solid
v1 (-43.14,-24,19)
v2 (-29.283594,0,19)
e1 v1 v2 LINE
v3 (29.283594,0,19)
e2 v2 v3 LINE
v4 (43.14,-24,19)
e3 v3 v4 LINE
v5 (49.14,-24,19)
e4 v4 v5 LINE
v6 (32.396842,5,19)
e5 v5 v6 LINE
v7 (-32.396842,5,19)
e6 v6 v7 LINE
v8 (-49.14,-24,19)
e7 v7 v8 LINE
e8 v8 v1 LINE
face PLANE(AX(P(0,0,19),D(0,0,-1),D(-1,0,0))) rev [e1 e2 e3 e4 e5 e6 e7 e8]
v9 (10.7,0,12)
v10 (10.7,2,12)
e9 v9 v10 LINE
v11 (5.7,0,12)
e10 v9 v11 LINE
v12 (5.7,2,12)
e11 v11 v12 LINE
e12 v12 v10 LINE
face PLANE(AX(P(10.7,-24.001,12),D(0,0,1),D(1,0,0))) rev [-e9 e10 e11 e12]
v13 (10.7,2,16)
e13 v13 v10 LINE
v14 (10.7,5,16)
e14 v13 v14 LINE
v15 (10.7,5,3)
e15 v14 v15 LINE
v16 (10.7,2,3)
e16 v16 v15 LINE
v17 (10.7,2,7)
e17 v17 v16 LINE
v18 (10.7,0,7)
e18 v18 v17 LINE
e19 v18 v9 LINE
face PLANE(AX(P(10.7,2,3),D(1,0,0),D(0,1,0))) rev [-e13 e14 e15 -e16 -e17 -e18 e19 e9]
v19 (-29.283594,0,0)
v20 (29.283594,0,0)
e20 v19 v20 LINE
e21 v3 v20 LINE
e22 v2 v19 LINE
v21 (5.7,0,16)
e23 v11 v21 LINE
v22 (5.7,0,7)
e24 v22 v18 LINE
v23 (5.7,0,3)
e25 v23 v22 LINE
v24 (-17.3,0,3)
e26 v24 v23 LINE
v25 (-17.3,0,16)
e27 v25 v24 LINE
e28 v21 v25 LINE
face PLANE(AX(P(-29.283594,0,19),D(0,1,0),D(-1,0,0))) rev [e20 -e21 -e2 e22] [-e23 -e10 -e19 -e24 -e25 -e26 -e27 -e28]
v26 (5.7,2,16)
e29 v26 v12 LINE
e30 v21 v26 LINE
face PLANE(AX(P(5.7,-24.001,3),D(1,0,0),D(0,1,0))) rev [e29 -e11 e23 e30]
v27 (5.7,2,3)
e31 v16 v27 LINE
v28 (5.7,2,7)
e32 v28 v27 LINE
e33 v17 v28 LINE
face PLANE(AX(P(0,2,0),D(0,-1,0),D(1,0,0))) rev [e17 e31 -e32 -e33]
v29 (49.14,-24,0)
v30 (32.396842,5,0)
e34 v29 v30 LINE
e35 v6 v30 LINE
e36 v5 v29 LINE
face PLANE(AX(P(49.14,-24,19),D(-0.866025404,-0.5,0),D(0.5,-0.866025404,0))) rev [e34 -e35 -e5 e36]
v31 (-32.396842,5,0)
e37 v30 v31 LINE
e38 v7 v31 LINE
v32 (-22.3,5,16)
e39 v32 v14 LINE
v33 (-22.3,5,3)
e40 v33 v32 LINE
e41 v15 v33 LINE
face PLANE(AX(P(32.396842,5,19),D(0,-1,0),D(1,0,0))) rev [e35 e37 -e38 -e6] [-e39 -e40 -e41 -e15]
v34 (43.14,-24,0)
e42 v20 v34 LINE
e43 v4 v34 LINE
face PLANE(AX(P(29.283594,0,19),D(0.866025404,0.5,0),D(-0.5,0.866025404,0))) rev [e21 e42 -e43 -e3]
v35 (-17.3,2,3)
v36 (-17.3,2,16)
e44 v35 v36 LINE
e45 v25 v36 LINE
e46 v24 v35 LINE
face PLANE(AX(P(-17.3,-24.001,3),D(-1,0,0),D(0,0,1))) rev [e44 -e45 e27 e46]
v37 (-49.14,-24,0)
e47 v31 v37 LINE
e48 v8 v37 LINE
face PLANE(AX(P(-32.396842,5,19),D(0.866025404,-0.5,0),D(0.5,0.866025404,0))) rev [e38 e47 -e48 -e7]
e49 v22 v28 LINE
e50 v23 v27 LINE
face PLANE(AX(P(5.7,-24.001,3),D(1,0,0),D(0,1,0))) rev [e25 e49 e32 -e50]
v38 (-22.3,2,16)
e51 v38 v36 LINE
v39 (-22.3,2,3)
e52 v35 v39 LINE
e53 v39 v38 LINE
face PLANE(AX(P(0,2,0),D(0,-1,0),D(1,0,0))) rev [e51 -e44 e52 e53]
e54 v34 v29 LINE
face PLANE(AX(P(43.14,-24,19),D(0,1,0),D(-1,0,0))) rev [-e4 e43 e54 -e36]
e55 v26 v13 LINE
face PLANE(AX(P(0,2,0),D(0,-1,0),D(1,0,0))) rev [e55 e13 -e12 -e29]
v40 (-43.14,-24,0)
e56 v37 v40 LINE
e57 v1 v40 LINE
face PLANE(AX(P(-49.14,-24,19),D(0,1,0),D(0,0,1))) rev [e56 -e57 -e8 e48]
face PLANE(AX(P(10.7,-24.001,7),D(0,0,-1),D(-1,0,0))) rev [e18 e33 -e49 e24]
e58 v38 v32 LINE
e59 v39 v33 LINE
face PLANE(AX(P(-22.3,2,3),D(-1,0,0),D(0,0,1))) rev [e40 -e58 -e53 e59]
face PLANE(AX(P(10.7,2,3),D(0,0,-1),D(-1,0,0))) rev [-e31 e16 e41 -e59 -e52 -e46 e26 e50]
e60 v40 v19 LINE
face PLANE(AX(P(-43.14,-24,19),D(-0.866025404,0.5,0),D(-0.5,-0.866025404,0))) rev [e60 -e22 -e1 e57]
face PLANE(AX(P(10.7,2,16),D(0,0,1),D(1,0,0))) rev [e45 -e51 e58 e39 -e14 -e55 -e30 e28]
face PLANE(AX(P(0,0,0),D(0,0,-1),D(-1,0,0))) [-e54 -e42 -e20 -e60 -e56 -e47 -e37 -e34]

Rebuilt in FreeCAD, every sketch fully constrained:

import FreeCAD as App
import Part
import Sketcher

V = App.Vector
Q = App.Units.Quantity

doc = App.newDocument("Part")
body = doc.addObject("PartDesign::Body", "Body")

# Sketch on XY plane
sketch1 = body.newObject("Sketcher::SketchObject", "Sketch")
sketch1.AttachmentSupport = (doc.getObject("XY_Plane"), [""])
sketch1.MapMode = "FlatFace"
sketch1.addGeometry(Part.LineSegment(V(-29, 0, 0), V(29, 0, 0)), False)
sketch1.addGeometry(Part.LineSegment(V(29, 0, 0), V(43, -24, 0)), False)
sketch1.addGeometry(Part.LineSegment(V(43, -24, 0), V(49, -24, 0)), False)
sketch1.addGeometry(Part.LineSegment(V(49, -24, 0), V(32, 5, 0)), False)
sketch1.addGeometry(Part.LineSegment(V(32, 5, 0), V(-32, 5, 0)), False)
sketch1.addGeometry(Part.LineSegment(V(-32, 5, 0), V(-49, -24, 0)), False)
sketch1.addGeometry(Part.LineSegment(V(-49, -24, 0), V(-43, -24, 0)), False)
sketch1.addGeometry(Part.LineSegment(V(-43, -24, 0), V(-29, 0, 0)), False)
sketch1.addConstraint(Sketcher.Constraint("Coincident", 0, 2, 1, 1))
sketch1.addConstraint(Sketcher.Constraint("Coincident", 1, 2, 2, 1))
sketch1.addConstraint(Sketcher.Constraint("Coincident", 2, 2, 3, 1))
sketch1.addConstraint(Sketcher.Constraint("Coincident", 3, 2, 4, 1))
sketch1.addConstraint(Sketcher.Constraint("Coincident", 4, 2, 5, 1))
sketch1.addConstraint(Sketcher.Constraint("Coincident", 5, 2, 6, 1))
sketch1.addConstraint(Sketcher.Constraint("Coincident", 6, 2, 7, 1))
sketch1.addConstraint(Sketcher.Constraint("Coincident", 7, 2, 0, 1))
sketch1.addConstraint(Sketcher.Constraint("Horizontal", 0))
sketch1.addConstraint(Sketcher.Constraint("Horizontal", 2))
sketch1.addConstraint(Sketcher.Constraint("Horizontal", 4))
sketch1.addConstraint(Sketcher.Constraint("Horizontal", 6))
sketch1.addConstraint(Sketcher.Constraint("Symmetric", 0, 2, 7, 2, -1, 1))
sketch1.addConstraint(Sketcher.Constraint("Symmetric", 2, 2, 5, 2, -2))
sketch1.addConstraint(Sketcher.Constraint("Parallel", 1, 3))
sketch1.addConstraint(Sketcher.Constraint("Parallel", 5, 7))
sketch1.addConstraint(Sketcher.Constraint("Equal", 2, 6))
sketch1.addConstraint(Sketcher.Constraint("DistanceX", 2, 1, 2, 2, 6.0))
sketch1.addConstraint(Sketcher.Constraint("Angle", 1, Q("-60 deg")))
sketch1.addConstraint(Sketcher.Constraint("DistanceY", 1, 2, -1, 1, 24.0))
sketch1.addConstraint(Sketcher.Constraint("DistanceY", -1, 1, 3, 2, 5.0))
sketch1.addConstraint(Sketcher.Constraint("DistanceX", -1, 1, 1, 2, 43.14))
pad1 = body.newObject("PartDesign::Pad", "Pad")
pad1.Profile = sketch1
pad1.Length = 19

# Sketch on XZ plane
sketch2 = body.newObject("Sketcher::SketchObject", "Sketch001")
sketch2.AttachmentSupport = (doc.getObject("XZ_Plane"), [""])
sketch2.MapMode = "FlatFace"
sketch2.AttachmentOffset = App.Placement(V(0, 0, -5), App.Rotation())
sketch2.addGeometry(Part.LineSegment(V(-22, 3, 0), V(-22, 16, 0)), False)
sketch2.addGeometry(Part.LineSegment(V(-22, 16, 0), V(11, 16, 0)), False)
sketch2.addGeometry(Part.LineSegment(V(11, 16, 0), V(11, 3, 0)), False)
sketch2.addGeometry(Part.LineSegment(V(11, 3, 0), V(-22, 3, 0)), False)
sketch2.addConstraint(Sketcher.Constraint("Coincident", 0, 2, 1, 1))
sketch2.addConstraint(Sketcher.Constraint("Coincident", 1, 2, 2, 1))
sketch2.addConstraint(Sketcher.Constraint("Coincident", 2, 2, 3, 1))
sketch2.addConstraint(Sketcher.Constraint("Coincident", 3, 2, 0, 1))
sketch2.addConstraint(Sketcher.Constraint("Vertical", 0))
sketch2.addConstraint(Sketcher.Constraint("Horizontal", 1))
sketch2.addConstraint(Sketcher.Constraint("Vertical", 2))
sketch2.addConstraint(Sketcher.Constraint("Horizontal", 3))
sketch2.addConstraint(Sketcher.Constraint("DistanceX", 1, 1, 1, 2, 33.0))
sketch2.addConstraint(Sketcher.Constraint("DistanceY", 0, 1, 0, 2, 13.0))
sketch2.addConstraint(Sketcher.Constraint("DistanceY", -1, 1, 0, 2, 16.0))
sketch2.addConstraint(Sketcher.Constraint("DistanceX", 0, 2, -1, 1, 22.3))
pocket1 = body.newObject("PartDesign::Pocket", "Pocket")
pocket1.Profile = sketch2
pocket1.Length = 3
pocket1.Reversed = True

# Sketch on XZ plane
sketch3 = body.newObject("Sketcher::SketchObject", "Sketch002")
sketch3.AttachmentSupport = (doc.getObject("XZ_Plane"), [""])
sketch3.MapMode = "FlatFace"
sketch3.AttachmentOffset = App.Placement(V(0, 0, -2), App.Rotation())
sketch3.addGeometry(Part.LineSegment(V(-17, 3, 0), V(-17, 16, 0)), False)
sketch3.addGeometry(Part.LineSegment(V(-17, 16, 0), V(6, 16, 0)), False)
sketch3.addGeometry(Part.LineSegment(V(6, 16, 0), V(6, 3, 0)), False)
sketch3.addGeometry(Part.LineSegment(V(6, 3, 0), V(-17, 3, 0)), False)
sketch3.addConstraint(Sketcher.Constraint("Coincident", 0, 2, 1, 1))
sketch3.addConstraint(Sketcher.Constraint("Coincident", 1, 2, 2, 1))
sketch3.addConstraint(Sketcher.Constraint("Coincident", 2, 2, 3, 1))
sketch3.addConstraint(Sketcher.Constraint("Coincident", 3, 2, 0, 1))
sketch3.addConstraint(Sketcher.Constraint("Vertical", 0))
sketch3.addConstraint(Sketcher.Constraint("Horizontal", 1))
sketch3.addConstraint(Sketcher.Constraint("Vertical", 2))
sketch3.addConstraint(Sketcher.Constraint("Horizontal", 3))
sketch3.addConstraint(Sketcher.Constraint("DistanceX", 1, 1, 1, 2, 23.0))
sketch3.addConstraint(Sketcher.Constraint("DistanceY", 0, 1, 0, 2, 13.0))
sketch3.addConstraint(Sketcher.Constraint("DistanceY", -1, 1, 0, 2, 16.0))
sketch3.addConstraint(Sketcher.Constraint("DistanceX", 0, 2, -1, 1, 17.3))
pocket2 = body.newObject("PartDesign::Pocket", "Pocket001")
pocket2.Profile = sketch3
pocket2.Type = "UpToFirst"
pocket2.Reversed = True

# Sketch on XZ plane
sketch4 = body.newObject("Sketcher::SketchObject", "Sketch003")
sketch4.AttachmentSupport = (doc.getObject("XZ_Plane"), [""])
sketch4.MapMode = "FlatFace"
sketch4.AttachmentOffset = App.Placement(V(0, 0, -2), App.Rotation())
sketch4.addGeometry(Part.LineSegment(V(5.7, 7, 0), V(5.7, 12, 0)), False)
sketch4.addGeometry(Part.LineSegment(V(5.7, 12, 0), V(10.7, 12, 0)), False)
sketch4.addGeometry(Part.LineSegment(V(10.7, 12, 0), V(10.7, 7, 0)), False)
sketch4.addGeometry(Part.LineSegment(V(10.7, 7, 0), V(5.7, 7, 0)), False)
sketch4.addConstraint(Sketcher.Constraint("Coincident", 0, 2, 1, 1))
sketch4.addConstraint(Sketcher.Constraint("Coincident", 1, 2, 2, 1))
sketch4.addConstraint(Sketcher.Constraint("Coincident", 2, 2, 3, 1))
sketch4.addConstraint(Sketcher.Constraint("Coincident", 3, 2, 0, 1))
sketch4.addConstraint(Sketcher.Constraint("Vertical", 0))
sketch4.addConstraint(Sketcher.Constraint("Horizontal", 1))
sketch4.addConstraint(Sketcher.Constraint("Vertical", 2))
sketch4.addConstraint(Sketcher.Constraint("Horizontal", 3))
sketch4.addConstraint(Sketcher.Constraint("Equal", 3, 0))
sketch4.addConstraint(Sketcher.Constraint("DistanceX", 1, 1, 1, 2, 5.0))
sketch4.addConstraint(Sketcher.Constraint("DistanceY", -1, 1, 0, 2, 12.0))
sketch4.addConstraint(Sketcher.Constraint("DistanceX", -1, 1, 0, 2, 5.7))
pocket3 = body.newObject("PartDesign::Pocket", "Pocket002")
pocket3.Profile = sketch4
pocket3.Type = "UpToFirst"
pocket3.Reversed = True

doc.recompute()
